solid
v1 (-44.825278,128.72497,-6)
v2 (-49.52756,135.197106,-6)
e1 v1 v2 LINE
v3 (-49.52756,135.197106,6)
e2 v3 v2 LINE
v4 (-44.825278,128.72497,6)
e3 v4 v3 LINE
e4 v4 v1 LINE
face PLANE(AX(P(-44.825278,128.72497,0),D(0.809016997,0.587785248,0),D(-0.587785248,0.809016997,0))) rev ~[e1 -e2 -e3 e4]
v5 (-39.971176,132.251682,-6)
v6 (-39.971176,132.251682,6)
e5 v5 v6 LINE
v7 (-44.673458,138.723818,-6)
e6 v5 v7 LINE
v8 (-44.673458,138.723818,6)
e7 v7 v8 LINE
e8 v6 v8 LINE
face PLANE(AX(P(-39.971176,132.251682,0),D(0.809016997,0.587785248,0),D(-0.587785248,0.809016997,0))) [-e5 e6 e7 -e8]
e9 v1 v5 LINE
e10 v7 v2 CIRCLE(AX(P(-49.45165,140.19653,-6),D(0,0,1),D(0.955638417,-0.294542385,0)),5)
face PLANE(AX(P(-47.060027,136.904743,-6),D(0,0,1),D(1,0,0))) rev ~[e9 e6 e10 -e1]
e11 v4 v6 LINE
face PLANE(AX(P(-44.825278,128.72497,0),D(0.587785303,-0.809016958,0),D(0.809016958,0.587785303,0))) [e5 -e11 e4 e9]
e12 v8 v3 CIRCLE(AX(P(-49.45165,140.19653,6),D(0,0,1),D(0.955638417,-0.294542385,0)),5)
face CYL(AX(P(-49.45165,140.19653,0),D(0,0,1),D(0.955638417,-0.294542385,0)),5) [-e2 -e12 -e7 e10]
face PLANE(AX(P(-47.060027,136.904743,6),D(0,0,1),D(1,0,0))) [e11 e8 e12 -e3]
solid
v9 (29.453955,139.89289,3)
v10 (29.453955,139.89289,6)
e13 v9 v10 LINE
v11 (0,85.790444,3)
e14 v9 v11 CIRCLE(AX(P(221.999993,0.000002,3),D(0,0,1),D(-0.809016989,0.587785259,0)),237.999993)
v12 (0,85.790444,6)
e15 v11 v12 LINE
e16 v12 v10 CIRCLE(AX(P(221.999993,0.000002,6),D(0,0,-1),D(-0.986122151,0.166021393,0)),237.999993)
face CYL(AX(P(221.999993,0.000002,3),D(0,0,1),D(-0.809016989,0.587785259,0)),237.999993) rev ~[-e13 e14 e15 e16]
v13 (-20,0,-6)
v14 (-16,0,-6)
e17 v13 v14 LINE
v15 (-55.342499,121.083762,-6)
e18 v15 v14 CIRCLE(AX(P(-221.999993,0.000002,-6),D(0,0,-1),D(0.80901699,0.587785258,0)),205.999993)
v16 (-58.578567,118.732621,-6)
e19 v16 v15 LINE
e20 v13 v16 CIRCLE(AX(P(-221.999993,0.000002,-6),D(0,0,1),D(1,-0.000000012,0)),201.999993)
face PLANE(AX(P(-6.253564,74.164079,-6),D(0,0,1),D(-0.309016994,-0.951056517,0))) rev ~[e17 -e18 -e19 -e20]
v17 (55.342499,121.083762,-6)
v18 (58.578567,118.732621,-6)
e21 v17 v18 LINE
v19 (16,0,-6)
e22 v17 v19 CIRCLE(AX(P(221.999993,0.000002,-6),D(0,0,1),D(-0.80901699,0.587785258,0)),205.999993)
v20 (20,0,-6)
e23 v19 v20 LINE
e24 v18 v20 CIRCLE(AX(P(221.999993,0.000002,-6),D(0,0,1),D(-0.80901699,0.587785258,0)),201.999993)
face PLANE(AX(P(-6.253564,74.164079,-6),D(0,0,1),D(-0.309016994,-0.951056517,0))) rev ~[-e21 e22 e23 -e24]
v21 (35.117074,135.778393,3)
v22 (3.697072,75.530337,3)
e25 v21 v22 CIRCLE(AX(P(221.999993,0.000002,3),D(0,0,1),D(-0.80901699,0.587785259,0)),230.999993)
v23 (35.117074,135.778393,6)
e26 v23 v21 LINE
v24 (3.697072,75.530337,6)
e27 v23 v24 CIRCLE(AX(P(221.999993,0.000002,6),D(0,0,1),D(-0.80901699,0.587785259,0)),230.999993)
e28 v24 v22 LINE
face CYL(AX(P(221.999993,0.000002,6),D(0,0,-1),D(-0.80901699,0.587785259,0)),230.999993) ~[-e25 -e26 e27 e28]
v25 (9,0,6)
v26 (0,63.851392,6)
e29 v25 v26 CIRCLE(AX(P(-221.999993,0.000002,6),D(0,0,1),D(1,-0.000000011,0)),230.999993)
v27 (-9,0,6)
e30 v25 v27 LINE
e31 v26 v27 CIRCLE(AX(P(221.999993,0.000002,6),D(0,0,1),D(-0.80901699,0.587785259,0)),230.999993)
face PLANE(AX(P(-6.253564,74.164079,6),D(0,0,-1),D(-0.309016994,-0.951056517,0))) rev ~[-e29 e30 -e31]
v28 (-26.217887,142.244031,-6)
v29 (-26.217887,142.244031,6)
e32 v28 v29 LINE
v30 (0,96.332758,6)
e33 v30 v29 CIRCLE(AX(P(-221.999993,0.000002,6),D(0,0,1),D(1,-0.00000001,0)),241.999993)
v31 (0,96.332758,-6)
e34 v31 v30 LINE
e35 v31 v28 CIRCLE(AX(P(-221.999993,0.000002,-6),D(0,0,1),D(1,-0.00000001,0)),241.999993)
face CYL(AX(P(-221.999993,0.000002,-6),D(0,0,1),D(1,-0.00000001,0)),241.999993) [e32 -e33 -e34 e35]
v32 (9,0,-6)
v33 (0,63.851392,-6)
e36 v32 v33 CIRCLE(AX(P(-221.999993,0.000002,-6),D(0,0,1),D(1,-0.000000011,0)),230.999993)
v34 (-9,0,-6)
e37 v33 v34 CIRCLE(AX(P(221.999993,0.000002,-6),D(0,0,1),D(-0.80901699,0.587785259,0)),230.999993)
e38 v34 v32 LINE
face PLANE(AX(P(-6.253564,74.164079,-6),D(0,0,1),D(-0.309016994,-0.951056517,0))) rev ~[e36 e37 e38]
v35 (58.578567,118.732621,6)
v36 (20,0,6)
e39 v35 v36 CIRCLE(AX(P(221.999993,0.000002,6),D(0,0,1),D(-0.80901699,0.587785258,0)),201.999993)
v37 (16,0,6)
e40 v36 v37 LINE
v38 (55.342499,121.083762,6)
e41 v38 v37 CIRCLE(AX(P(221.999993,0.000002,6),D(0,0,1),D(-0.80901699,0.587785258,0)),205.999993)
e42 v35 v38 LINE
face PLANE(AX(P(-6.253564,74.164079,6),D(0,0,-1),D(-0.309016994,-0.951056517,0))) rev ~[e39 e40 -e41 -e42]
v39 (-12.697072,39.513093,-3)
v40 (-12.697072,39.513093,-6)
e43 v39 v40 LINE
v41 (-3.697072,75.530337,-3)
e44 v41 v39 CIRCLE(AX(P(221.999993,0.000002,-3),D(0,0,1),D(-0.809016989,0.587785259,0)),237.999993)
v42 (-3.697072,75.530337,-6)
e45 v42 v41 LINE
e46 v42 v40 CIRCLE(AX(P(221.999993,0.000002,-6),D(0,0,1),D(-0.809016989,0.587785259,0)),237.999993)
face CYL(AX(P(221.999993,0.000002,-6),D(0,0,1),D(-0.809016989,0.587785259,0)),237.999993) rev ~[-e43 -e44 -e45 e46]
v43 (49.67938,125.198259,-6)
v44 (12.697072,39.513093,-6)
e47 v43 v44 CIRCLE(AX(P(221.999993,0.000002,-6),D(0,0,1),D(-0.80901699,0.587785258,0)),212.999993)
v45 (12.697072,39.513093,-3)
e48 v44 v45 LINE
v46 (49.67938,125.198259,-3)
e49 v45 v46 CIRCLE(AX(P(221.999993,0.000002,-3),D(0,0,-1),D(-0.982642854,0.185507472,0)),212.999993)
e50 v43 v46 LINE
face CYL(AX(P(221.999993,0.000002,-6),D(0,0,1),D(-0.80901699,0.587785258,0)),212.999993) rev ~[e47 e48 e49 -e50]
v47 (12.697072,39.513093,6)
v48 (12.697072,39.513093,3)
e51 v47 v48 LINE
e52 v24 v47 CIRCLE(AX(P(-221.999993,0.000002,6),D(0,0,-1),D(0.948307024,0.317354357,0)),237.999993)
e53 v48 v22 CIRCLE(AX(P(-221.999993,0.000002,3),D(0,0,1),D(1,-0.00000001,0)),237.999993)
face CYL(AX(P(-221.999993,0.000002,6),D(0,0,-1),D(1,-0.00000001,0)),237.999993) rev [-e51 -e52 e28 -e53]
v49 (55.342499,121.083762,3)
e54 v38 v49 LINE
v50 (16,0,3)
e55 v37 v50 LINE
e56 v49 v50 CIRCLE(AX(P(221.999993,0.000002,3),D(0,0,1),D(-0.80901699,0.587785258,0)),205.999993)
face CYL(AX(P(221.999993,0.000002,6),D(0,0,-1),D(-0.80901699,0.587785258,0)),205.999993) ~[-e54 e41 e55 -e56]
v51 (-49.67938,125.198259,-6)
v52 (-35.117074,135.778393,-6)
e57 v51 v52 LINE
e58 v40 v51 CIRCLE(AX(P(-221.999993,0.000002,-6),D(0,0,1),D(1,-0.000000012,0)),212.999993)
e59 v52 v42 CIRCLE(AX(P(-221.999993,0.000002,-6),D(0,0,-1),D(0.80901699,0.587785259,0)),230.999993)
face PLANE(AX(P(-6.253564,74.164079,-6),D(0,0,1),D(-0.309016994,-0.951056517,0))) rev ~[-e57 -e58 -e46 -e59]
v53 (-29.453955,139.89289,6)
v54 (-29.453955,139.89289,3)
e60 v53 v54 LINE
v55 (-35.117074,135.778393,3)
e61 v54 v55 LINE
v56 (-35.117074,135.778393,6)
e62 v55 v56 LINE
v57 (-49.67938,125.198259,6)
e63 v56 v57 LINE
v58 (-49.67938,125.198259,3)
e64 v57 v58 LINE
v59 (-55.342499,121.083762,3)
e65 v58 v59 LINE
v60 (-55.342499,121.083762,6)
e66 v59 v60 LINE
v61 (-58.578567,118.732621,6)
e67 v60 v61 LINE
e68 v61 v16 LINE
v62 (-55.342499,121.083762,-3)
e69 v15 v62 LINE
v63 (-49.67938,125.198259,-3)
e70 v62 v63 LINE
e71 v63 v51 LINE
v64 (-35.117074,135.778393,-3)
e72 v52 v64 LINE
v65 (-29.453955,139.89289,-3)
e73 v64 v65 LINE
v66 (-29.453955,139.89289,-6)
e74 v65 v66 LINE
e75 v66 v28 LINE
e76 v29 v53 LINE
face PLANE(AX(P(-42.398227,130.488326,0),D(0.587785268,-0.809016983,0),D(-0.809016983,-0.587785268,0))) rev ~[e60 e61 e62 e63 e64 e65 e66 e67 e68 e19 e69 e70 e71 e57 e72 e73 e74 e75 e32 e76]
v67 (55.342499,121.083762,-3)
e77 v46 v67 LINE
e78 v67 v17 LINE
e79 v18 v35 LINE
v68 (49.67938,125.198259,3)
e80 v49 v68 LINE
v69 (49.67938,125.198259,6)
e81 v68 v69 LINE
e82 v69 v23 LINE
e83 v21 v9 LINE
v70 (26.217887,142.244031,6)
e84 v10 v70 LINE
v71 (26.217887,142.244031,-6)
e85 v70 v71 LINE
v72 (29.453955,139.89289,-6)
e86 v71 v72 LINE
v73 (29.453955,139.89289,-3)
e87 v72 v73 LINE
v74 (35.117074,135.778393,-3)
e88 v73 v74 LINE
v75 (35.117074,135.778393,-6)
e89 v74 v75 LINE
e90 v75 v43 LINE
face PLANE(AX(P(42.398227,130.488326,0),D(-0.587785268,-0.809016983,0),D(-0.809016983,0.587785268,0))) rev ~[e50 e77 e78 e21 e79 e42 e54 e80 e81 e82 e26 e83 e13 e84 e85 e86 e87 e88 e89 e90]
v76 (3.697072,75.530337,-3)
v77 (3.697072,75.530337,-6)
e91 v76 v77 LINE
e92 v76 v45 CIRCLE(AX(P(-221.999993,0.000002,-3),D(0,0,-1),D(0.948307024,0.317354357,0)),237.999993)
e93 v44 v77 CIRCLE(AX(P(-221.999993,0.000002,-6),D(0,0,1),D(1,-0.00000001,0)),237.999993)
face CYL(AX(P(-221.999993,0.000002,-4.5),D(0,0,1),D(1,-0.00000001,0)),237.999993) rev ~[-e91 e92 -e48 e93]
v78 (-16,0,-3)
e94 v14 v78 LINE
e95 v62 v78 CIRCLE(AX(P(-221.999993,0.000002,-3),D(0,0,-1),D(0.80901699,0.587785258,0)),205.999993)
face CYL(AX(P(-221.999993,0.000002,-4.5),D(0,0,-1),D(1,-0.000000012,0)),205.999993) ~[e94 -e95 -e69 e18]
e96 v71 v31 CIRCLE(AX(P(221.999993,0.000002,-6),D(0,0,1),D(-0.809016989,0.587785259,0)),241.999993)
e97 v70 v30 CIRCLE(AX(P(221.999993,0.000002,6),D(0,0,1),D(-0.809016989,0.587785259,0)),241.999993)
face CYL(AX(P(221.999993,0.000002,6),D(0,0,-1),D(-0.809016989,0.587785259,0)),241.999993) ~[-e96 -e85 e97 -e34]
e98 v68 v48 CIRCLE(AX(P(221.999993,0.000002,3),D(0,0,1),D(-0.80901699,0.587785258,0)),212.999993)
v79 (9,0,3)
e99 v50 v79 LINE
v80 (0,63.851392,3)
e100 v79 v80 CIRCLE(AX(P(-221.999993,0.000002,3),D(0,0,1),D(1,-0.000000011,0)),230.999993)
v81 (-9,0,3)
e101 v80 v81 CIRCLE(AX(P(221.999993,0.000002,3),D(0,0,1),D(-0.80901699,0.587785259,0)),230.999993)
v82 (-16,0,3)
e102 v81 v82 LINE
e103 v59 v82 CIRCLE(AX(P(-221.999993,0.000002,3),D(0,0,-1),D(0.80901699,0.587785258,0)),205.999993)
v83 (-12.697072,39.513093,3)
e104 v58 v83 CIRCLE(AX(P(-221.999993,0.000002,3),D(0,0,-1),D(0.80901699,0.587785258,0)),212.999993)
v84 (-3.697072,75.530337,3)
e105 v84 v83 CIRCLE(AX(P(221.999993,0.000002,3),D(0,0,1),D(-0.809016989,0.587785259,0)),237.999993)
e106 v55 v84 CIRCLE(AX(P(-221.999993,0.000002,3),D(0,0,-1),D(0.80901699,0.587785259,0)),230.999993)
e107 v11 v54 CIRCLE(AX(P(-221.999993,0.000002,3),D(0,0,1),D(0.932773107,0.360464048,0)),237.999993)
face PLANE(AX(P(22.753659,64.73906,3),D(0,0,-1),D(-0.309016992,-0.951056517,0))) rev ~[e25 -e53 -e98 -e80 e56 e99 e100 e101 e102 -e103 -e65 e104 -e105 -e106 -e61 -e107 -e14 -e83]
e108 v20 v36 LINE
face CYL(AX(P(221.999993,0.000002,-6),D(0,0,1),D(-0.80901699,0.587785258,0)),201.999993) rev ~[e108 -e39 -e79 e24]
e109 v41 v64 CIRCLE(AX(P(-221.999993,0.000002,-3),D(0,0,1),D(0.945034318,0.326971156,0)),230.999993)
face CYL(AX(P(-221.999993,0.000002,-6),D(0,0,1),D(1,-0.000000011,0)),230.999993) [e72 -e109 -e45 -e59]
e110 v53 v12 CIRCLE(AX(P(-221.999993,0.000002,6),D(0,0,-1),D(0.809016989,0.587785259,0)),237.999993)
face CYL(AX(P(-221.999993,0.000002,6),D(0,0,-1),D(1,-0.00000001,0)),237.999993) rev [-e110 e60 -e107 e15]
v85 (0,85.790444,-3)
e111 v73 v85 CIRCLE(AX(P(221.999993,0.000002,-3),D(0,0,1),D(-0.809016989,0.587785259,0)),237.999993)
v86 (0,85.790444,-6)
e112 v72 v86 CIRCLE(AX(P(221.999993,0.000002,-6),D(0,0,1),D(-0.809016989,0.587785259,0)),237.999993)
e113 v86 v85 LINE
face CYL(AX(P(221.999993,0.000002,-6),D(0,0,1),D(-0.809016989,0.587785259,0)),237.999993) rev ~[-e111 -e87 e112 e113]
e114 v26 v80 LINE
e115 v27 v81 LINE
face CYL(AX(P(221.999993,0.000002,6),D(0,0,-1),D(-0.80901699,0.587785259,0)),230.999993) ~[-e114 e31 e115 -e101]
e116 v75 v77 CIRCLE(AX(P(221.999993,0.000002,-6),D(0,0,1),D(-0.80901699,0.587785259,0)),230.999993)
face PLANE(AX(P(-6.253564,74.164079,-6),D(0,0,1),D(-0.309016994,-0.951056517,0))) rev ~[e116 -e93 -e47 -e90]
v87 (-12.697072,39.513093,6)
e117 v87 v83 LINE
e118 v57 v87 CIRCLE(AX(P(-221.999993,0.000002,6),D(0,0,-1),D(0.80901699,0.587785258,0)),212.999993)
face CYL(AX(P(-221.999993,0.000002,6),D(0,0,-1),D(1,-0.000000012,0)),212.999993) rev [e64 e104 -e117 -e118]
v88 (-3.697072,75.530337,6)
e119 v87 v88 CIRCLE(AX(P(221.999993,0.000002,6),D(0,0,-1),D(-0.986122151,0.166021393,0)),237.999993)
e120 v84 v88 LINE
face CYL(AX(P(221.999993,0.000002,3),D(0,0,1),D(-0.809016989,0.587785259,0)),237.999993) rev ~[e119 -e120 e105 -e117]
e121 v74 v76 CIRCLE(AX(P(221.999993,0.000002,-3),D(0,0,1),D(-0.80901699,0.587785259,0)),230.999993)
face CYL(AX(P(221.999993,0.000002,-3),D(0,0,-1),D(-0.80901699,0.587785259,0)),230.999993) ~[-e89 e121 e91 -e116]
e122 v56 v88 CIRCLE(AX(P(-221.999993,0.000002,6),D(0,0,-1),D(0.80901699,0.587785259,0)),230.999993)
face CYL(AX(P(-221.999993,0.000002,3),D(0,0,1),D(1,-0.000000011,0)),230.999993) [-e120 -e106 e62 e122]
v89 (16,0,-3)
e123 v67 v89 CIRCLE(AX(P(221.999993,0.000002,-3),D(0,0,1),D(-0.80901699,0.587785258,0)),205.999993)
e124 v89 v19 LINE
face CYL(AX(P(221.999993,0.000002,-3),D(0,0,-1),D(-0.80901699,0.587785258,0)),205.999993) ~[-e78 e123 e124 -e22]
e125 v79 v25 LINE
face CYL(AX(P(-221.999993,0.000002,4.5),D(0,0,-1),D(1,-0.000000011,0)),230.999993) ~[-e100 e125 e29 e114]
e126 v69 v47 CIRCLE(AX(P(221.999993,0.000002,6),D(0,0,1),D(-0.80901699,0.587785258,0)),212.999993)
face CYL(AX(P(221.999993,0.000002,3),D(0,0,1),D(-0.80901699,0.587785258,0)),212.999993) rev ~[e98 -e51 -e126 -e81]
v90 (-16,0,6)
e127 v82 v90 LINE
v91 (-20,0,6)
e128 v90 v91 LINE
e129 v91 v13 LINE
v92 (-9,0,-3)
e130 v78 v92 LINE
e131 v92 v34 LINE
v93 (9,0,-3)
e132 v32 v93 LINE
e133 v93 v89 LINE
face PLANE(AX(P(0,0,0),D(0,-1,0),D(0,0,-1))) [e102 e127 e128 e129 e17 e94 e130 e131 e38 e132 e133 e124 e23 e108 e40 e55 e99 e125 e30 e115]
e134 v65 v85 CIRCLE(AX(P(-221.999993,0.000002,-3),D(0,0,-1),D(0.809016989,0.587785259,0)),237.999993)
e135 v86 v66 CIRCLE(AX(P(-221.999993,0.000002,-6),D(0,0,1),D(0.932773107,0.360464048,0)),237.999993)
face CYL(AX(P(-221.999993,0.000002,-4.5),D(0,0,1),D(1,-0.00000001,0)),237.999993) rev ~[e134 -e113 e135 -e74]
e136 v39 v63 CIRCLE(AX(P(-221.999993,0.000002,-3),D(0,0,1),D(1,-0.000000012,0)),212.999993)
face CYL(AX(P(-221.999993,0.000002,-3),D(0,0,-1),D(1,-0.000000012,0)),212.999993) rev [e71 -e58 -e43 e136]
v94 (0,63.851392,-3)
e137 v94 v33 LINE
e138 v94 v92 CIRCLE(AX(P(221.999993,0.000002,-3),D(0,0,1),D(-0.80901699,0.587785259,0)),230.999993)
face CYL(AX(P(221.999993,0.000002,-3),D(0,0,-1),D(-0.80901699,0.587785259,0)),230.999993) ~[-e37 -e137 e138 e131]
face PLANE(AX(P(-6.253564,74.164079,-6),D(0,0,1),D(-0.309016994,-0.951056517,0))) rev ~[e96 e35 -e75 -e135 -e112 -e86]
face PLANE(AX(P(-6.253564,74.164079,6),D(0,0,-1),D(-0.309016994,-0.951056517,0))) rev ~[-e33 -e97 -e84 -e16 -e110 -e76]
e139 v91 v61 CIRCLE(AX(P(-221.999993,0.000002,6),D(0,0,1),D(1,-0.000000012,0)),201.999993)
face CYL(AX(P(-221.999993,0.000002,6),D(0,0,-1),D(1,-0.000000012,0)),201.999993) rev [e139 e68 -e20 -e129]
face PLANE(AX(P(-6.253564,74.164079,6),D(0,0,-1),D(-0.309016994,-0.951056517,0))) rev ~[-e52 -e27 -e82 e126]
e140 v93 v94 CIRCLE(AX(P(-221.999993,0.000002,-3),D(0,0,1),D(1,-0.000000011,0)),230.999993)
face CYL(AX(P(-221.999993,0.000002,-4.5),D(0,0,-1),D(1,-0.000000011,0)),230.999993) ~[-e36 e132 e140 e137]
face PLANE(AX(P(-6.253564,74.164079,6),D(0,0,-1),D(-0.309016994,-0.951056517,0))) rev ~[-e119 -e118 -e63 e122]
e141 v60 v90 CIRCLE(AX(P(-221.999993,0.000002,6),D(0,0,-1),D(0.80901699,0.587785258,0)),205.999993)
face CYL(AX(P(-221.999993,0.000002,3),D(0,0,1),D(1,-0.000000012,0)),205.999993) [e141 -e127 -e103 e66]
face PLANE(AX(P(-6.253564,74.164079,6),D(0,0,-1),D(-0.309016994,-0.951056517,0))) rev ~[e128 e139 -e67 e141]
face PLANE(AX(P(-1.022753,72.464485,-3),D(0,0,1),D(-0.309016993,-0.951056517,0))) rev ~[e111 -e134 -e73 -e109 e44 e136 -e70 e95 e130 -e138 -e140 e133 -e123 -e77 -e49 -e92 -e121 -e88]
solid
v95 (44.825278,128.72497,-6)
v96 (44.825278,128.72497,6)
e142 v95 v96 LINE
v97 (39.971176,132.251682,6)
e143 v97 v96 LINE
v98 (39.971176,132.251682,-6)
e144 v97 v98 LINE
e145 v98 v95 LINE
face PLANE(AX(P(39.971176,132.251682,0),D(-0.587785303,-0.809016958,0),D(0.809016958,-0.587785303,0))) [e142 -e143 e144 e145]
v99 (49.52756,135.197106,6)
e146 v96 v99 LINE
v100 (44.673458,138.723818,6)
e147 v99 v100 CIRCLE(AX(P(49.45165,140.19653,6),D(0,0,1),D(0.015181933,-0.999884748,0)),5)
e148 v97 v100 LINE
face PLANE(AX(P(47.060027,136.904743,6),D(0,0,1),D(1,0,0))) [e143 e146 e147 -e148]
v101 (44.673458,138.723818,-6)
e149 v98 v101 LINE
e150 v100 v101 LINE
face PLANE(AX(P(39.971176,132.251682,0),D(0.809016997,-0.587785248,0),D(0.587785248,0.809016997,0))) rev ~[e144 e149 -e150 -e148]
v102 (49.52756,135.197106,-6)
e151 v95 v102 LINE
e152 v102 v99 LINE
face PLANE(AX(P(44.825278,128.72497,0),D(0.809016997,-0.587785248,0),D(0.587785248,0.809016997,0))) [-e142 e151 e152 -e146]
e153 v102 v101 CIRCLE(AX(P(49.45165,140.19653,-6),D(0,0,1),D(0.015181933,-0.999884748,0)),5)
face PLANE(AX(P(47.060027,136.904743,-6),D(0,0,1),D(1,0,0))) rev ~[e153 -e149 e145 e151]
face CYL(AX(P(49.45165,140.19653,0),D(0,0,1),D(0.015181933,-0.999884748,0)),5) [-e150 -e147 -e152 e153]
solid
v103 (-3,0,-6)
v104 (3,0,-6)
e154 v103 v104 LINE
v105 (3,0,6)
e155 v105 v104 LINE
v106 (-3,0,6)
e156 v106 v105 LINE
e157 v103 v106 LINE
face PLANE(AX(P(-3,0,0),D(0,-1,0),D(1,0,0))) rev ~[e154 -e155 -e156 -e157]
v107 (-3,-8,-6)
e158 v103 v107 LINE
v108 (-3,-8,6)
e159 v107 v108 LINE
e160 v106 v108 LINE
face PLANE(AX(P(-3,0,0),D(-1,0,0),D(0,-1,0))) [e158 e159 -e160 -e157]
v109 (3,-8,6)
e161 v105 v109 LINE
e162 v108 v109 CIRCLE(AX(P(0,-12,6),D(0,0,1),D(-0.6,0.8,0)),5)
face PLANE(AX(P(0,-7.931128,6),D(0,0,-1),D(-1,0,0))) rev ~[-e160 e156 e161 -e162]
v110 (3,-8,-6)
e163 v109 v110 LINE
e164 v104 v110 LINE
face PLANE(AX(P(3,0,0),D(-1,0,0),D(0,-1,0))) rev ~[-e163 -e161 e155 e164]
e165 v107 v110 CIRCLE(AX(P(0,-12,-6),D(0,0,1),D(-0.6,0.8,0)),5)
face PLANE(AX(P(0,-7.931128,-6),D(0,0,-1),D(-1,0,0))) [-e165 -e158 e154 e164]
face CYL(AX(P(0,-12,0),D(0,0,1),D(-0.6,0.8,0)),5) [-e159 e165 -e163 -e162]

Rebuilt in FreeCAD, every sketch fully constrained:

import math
import FreeCAD as App
import Part
import Sketcher
from FreeCAD import Vector
Q = App.Units.Quantity

doc = App.newDocument("Part")
body = doc.addObject("PartDesign::Body", "Body")

# Sketch on XZ plane
sketch1 = body.newObject("Sketcher::SketchObject", "Sketch")
sketch1.AttachmentSupport = (doc.getObject("XZ_Plane"), [""])
sketch1.MapMode = "FlatFace"
sketch1.addGeometry(Part.LineSegment(Vector(-20, 6, 0), Vector(-20, -6, 0)), False)
sketch1.addGeometry(Part.LineSegment(Vector(-20, -6, 0), Vector(-16, -6, 0)), False)
sketch1.addGeometry(Part.LineSegment(Vector(-16, -6, 0), Vector(-16, -3, 0)), False)
sketch1.addGeometry(Part.LineSegment(Vector(-16, -3, 0), Vector(-9, -3, 0)), False)
sketch1.addGeometry(Part.LineSegment(Vector(-9, -3, 0), Vector(-9, -6, 0)), False)
sketch1.addGeometry(Part.LineSegment(Vector(-9, -6, 0), Vector(9, -6, 0)), False)
sketch1.addGeometry(Part.LineSegment(Vector(9, -6, 0), Vector(9, -3, 0)), False)
sketch1.addGeometry(Part.LineSegment(Vector(9, -3, 0), Vector(16, -3, 0)), False)
sketch1.addGeometry(Part.LineSegment(Vector(16, -3, 0), Vector(16, -6, 0)), False)
sketch1.addGeometry(Part.LineSegment(Vector(16, -6, 0), Vector(20, -6, 0)), False)
sketch1.addGeometry(Part.LineSegment(Vector(20, -6, 0), Vector(20, 6, 0)), False)
sketch1.addGeometry(Part.LineSegment(Vector(20, 6, 0), Vector(16, 6, 0)), False)
sketch1.addGeometry(Part.LineSegment(Vector(16, 6, 0), Vector(16, 3, 0)), False)
sketch1.addGeometry(Part.LineSegment(Vector(16, 3, 0), Vector(9, 3, 0)), False)
sketch1.addGeometry(Part.LineSegment(Vector(9, 3, 0), Vector(9, 6, 0)), False)
sketch1.addGeometry(Part.LineSegment(Vector(9, 6, 0), Vector(-9, 6, 0)), False)
sketch1.addGeometry(Part.LineSegment(Vector(-9, 6, 0), Vector(-9, 3, 0)), False)
sketch1.addGeometry(Part.LineSegment(Vector(-9, 3, 0), Vector(-16, 3, 0)), False)
sketch1.addGeometry(Part.LineSegment(Vector(-16, 3, 0), Vector(-16, 6, 0)), False)
sketch1.addGeometry(Part.LineSegment(Vector(-16, 6, 0), Vector(-20, 6, 0)), False)
sketch1.addConstraint(Sketcher.Constraint("Coincident", 0, 2, 1, 1))
sketch1.addConstraint(Sketcher.Constraint("Coincident", 1, 2, 2, 1))
sketch1.addConstraint(Sketcher.Constraint("Coincident", 2, 2, 3, 1))
sketch1.addConstraint(Sketcher.Constraint("Coincident", 3, 2, 4, 1))
sketch1.addConstraint(Sketcher.Constraint("Coincident", 4, 2, 5, 1))
sketch1.addConstraint(Sketcher.Constraint("Coincident", 5, 2, 6, 1))
sketch1.addConstraint(Sketcher.Constraint("Coincident", 6, 2, 7, 1))
sketch1.addConstraint(Sketcher.Constraint("Coincident", 7, 2, 8, 1))
sketch1.addConstraint(Sketcher.Constraint("Coincident", 8, 2, 9, 1))
sketch1.addConstraint(Sketcher.Constraint("Coincident", 9, 2, 10, 1))
sketch1.addConstraint(Sketcher.Constraint("Coincident", 10, 2, 11, 1))
sketch1.addConstraint(Sketcher.Constraint("Coincident", 11, 2, 12, 1))
sketch1.addConstraint(Sketcher.Constraint("Coincident", 12, 2, 13, 1))
sketch1.addConstraint(Sketcher.Constraint("Coincident", 13, 2, 14, 1))
sketch1.addConstraint(Sketcher.Constraint("Coincident", 14, 2, 15, 1))
sketch1.addConstraint(Sketcher.Constraint("Coincident", 15, 2, 16, 1))
sketch1.addConstraint(Sketcher.Constraint("Coincident", 16, 2, 17, 1))
sketch1.addConstraint(Sketcher.Constraint("Coincident", 17, 2, 18, 1))
sketch1.addConstraint(Sketcher.Constraint("Coincident", 18, 2, 19, 1))
sketch1.addConstraint(Sketcher.Constraint("Coincident", 19, 2, 0, 1))
sketch1.addConstraint(Sketcher.Constraint("Vertical", 0))
sketch1.addConstraint(Sketcher.Constraint("Horizontal", 1))
sketch1.addConstraint(Sketcher.Constraint("Vertical", 2))
sketch1.addConstraint(Sketcher.Constraint("Horizontal", 3))
sketch1.addConstraint(Sketcher.Constraint("Vertical", 4))
sketch1.addConstraint(Sketcher.Constraint("Horizontal", 5))
sketch1.addConstraint(Sketcher.Constraint("Vertical", 6))
sketch1.addConstraint(Sketcher.Constraint("Horizontal", 7))
sketch1.addConstraint(Sketcher.Constraint("Vertical", 8))
sketch1.addConstraint(Sketcher.Constraint("Horizontal", 9))
sketch1.addConstraint(Sketcher.Constraint("Vertical", 10))
sketch1.addConstraint(Sketcher.Constraint("Horizontal", 11))
sketch1.addConstraint(Sketcher.Constraint("Vertical", 12))
sketch1.addConstraint(Sketcher.Constraint("Horizontal", 13))
sketch1.addConstraint(Sketcher.Constraint("Vertical", 14))
sketch1.addConstraint(Sketcher.Constraint("Horizontal", 15))
sketch1.addConstraint(Sketcher.Constraint("Vertical", 16))
sketch1.addConstraint(Sketcher.Constraint("Horizontal", 17))
sketch1.addConstraint(Sketcher.Constraint("Vertical", 18))
sketch1.addConstraint(Sketcher.Constraint("Horizontal", 19))
sketch1.addConstraint(Sketcher.Constraint("Symmetric", 0, 2, 10, 2, -1, 1))
sketch1.addConstraint(Sketcher.Constraint("Symmetric", 2, 2, 12, 2, -1, 1))
sketch1.addConstraint(Sketcher.Constraint("Symmetric", 4, 2, 14, 2, -1, 1))
sketch1.addConstraint(Sketcher.Constraint("Symmetric", 6, 2, 16, 2, -1, 1))
sketch1.addConstraint(Sketcher.Constraint("Symmetric", 8, 2, 18, 2, -1, 1))
sketch1.addConstraint(Sketcher.Constraint("Symmetric", 3, 2, 6, 2, -2))
sketch1.addConstraint(Sketcher.Constraint("Symmetric", 1, 2, 8, 2, -2))
sketch1.addConstraint(Sketcher.Constraint("Horizontal", 1, 2, 4, 2))
sketch1.addConstraint(Sketcher.Constraint("DistanceX", 1, 1, 1, 2, Q("4 mm")))
sketch1.addConstraint(Sketcher.Constraint("DistanceX", 3, 1, 3, 2, Q("7 mm")))
sketch1.addConstraint(Sketcher.Constraint("DistanceX", 5, 1, 5, 2, Q("18 mm")))
sketch1.addConstraint(Sketcher.Constraint("DistanceY", 0, 2, 0, 1, Q("12 mm")))
sketch1.addConstraint(Sketcher.Constraint("DistanceY", 2, 1, 2, 2, Q("3 mm")))

# Sketch on XY plane
sketch2 = body.newObject("Sketcher::SketchObject", "Sketch001")
sketch2.AttachmentSupport = (doc.getObject("XY_Plane"), [""])
sketch2.MapMode = "FlatFace"
sketch2.addGeometry(Part.ArcOfCircle(Part.Circle(Vector(-222, 0, 0), Vector(0, 0, 1), 222), math.radians(0), math.radians(36)), False)
sketch2.addConstraint(Sketcher.Constraint("Coincident", 0, 1, -1, 1))
sketch2.addConstraint(Sketcher.Constraint("Radius", 0, Q("221.999993 mm")))
sketch2.addConstraint(Sketcher.Constraint("DistanceX", 0, 2, -1, 1, Q("42.398227 mm")))
sketch2.addConstraint(Sketcher.Constraint("DistanceY", -1, 1, 0, 2, Q("130.488326 mm")))
doc.recompute()

additivepipe = body.newObject("PartDesign::AdditivePipe", "AdditivePipe")
additivepipe.Profile = sketch1
additivepipe.Spine = (sketch2, ["Edge1"])

# Sketch on XZ plane
sketch3 = body.newObject("Sketcher::SketchObject", "Sketch002")
sketch3.AttachmentSupport = (doc.getObject("XZ_Plane"), [""])
sketch3.MapMode = "FlatFace"
sketch3.addGeometry(Part.LineSegment(Vector(-20, 6, 0), Vector(-20, -6, 0)), False)
sketch3.addGeometry(Part.LineSegment(Vector(-20, -6, 0), Vector(-16, -6, 0)), False)
sketch3.addGeometry(Part.LineSegment(Vector(-16, -6, 0), Vector(-16, -3, 0)), False)
sketch3.addGeometry(Part.LineSegment(Vector(-16, -3, 0), Vector(-9, -3, 0)), False)
sketch3.addGeometry(Part.LineSegment(Vector(-9, -3, 0), Vector(-9, -6, 0)), False)
sketch3.addGeometry(Part.LineSegment(Vector(-9, -6, 0), Vector(9, -6, 0)), False)
sketch3.addGeometry(Part.LineSegment(Vector(9, -6, 0), Vector(9, -3, 0)), False)
sketch3.addGeometry(Part.LineSegment(Vector(9, -3, 0), Vector(16, -3, 0)), False)
sketch3.addGeometry(Part.LineSegment(Vector(16, -3, 0), Vector(16, -6, 0)), False)
sketch3.addGeometry(Part.LineSegment(Vector(16, -6, 0), Vector(20, -6, 0)), False)
sketch3.addGeometry(Part.LineSegment(Vector(20, -6, 0), Vector(20, 6, 0)), False)
sketch3.addGeometry(Part.LineSegment(Vector(20, 6, 0), Vector(16, 6, 0)), False)
sketch3.addGeometry(Part.LineSegment(Vector(16, 6, 0), Vector(16, 3, 0)), False)
sketch3.addGeometry(Part.LineSegment(Vector(16, 3, 0), Vector(9, 3, 0)), False)
sketch3.addGeometry(Part.LineSegment(Vector(9, 3, 0), Vector(9, 6, 0)), False)
sketch3.addGeometry(Part.LineSegment(Vector(9, 6, 0), Vector(-9, 6, 0)), False)
sketch3.addGeometry(Part.LineSegment(Vector(-9, 6, 0), Vector(-9, 3, 0)), False)
sketch3.addGeometry(Part.LineSegment(Vector(-9, 3, 0), Vector(-16, 3, 0)), False)
sketch3.addGeometry(Part.LineSegment(Vector(-16, 3, 0), Vector(-16, 6, 0)), False)
sketch3.addGeometry(Part.LineSegment(Vector(-16, 6, 0), Vector(-20, 6, 0)), False)
sketch3.addConstraint(Sketcher.Constraint("Coincident", 0, 2, 1, 1))
sketch3.addConstraint(Sketcher.Constraint("Coincident", 1, 2, 2, 1))
sketch3.addConstraint(Sketcher.Constraint("Coincident", 2, 2, 3, 1))
sketch3.addConstraint(Sketcher.Constraint("Coincident", 3, 2, 4, 1))
sketch3.addConstraint(Sketcher.Constraint("Coincident", 4, 2, 5, 1))
sketch3.addConstraint(Sketcher.Constraint("Coincident", 5, 2, 6, 1))
sketch3.addConstraint(Sketcher.Constraint("Coincident", 6, 2, 7, 1))
sketch3.addConstraint(Sketcher.Constraint("Coincident", 7, 2, 8, 1))
sketch3.addConstraint(Sketcher.Constraint("Coincident", 8, 2, 9, 1))
sketch3.addConstraint(Sketcher.Constraint("Coincident", 9, 2, 10, 1))
sketch3.addConstraint(Sketcher.Constraint("Coincident", 10, 2, 11, 1))
sketch3.addConstraint(Sketcher.Constraint("Coincident", 11, 2, 12, 1))
sketch3.addConstraint(Sketcher.Constraint("Coincident", 12, 2, 13, 1))
sketch3.addConstraint(Sketcher.Constraint("Coincident", 13, 2, 14, 1))
sketch3.addConstraint(Sketcher.Constraint("Coincident", 14, 2, 15, 1))
sketch3.addConstraint(Sketcher.Constraint("Coincident", 15, 2, 16, 1))
sketch3.addConstraint(Sketcher.Constraint("Coincident", 16, 2, 17, 1))
sketch3.addConstraint(Sketcher.Constraint("Coincident", 17, 2, 18, 1))
sketch3.addConstraint(Sketcher.Constraint("Coincident", 18, 2, 19, 1))
sketch3.addConstraint(Sketcher.Constraint("Coincident", 19, 2, 0, 1))
sketch3.addConstraint(Sketcher.Constraint("Vertical", 0))
sketch3.addConstraint(Sketcher.Constraint("Horizontal", 1))
sketch3.addConstraint(Sketcher.Constraint("Vertical", 2))
sketch3.addConstraint(Sketcher.Constraint("Horizontal", 3))
sketch3.addConstraint(Sketcher.Constraint("Vertical", 4))
sketch3.addConstraint(Sketcher.Constraint("Horizontal", 5))
sketch3.addConstraint(Sketcher.Constraint("Vertical", 6))
sketch3.addConstraint(Sketcher.Constraint("Horizontal", 7))
sketch3.addConstraint(Sketcher.Constraint("Vertical", 8))
sketch3.addConstraint(Sketcher.Constraint("Horizontal", 9))
sketch3.addConstraint(Sketcher.Constraint("Vertical", 10))
sketch3.addConstraint(Sketcher.Constraint("Horizontal", 11))
sketch3.addConstraint(Sketcher.Constraint("Vertical", 12))
sketch3.addConstraint(Sketcher.Constraint("Horizontal", 13))
sketch3.addConstraint(Sketcher.Constraint("Vertical", 14))
sketch3.addConstraint(Sketcher.Constraint("Horizontal", 15))
sketch3.addConstraint(Sketcher.Constraint("Vertical", 16))
sketch3.addConstraint(Sketcher.Constraint("Horizontal", 17))
sketch3.addConstraint(Sketcher.Constraint("Vertical", 18))
sketch3.addConstraint(Sketcher.Constraint("Horizontal", 19))
sketch3.addConstraint(Sketcher.Constraint("Symmetric", 0, 2, 10, 2, -1, 1))
sketch3.addConstraint(Sketcher.Constraint("Symmetric", 2, 2, 12, 2, -1, 1))
sketch3.addConstraint(Sketcher.Constraint("Symmetric", 4, 2, 14, 2, -1, 1))
sketch3.addConstraint(Sketcher.Constraint("Symmetric", 6, 2, 16, 2, -1, 1))
sketch3.addConstraint(Sketcher.Constraint("Symmetric", 8, 2, 18, 2, -1, 1))
sketch3.addConstraint(Sketcher.Constraint("Symmetric", 3, 2, 6, 2, -2))
sketch3.addConstraint(Sketcher.Constraint("Symmetric", 1, 2, 8, 2, -2))
sketch3.addConstraint(Sketcher.Constraint("Horizontal", 1, 2, 4, 2))
sketch3.addConstraint(Sketcher.Constraint("DistanceX", 1, 1, 1, 2, Q("4 mm")))
sketch3.addConstraint(Sketcher.Constraint("DistanceX", 3, 1, 3, 2, Q("7 mm")))
sketch3.addConstraint(Sketcher.Constraint("DistanceX", 5, 1, 5, 2, Q("18 mm")))
sketch3.addConstraint(Sketcher.Constraint("DistanceY", 0, 2, 0, 1, Q("12 mm")))
sketch3.addConstraint(Sketcher.Constraint("DistanceY", 2, 1, 2, 2, Q("3 mm")))

# Sketch on XY plane
sketch4 = body.newObject("Sketcher::SketchObject", "Sketch003")
sketch4.AttachmentSupport = (doc.getObject("XY_Plane"), [""])
sketch4.MapMode = "FlatFace"
sketch4.addGeometry(Part.ArcOfCircle(Part.Circle(Vector(222, 0, 0), Vector(0, 0, 1), 222), math.radians(144), math.radians(180)), False)
sketch4.addConstraint(Sketcher.Constraint("Coincident", 0, 2, -1, 1))
sketch4.addConstraint(Sketcher.Constraint("Radius", 0, Q("221.999993 mm")))
sketch4.addConstraint(Sketcher.Constraint("DistanceX", -1, 1, 0, 1, Q("42.398227 mm")))
sketch4.addConstraint(Sketcher.Constraint("DistanceY", -1, 1, 0, 1, Q("130.488326 mm")))
doc.recompute()

additivepipe2 = body.newObject("PartDesign::AdditivePipe", "AdditivePipe001")
additivepipe2.Profile = sketch3
additivepipe2.Spine = (sketch4, ["Edge1"])

# Sketch on XZ plane
sketch5 = body.newObject("Sketcher::SketchObject", "Sketch004")
sketch5.AttachmentSupport = (doc.getObject("XZ_Plane"), [""])
sketch5.MapMode = "FlatFace"
sketch5.addGeometry(Part.LineSegment(Vector(-16, 6, 0), Vector(-16, 3, 0)), False)
sketch5.addGeometry(Part.LineSegment(Vector(-16, 3, 0), Vector(-9, 3, 0)), False)
sketch5.addGeometry(Part.LineSegment(Vector(-9, 3, 0), Vector(-9, 6, 0)), False)
sketch5.addGeometry(Part.LineSegment(Vector(-9, 6, 0), Vector(-16, 6, 0)), False)
sketch5.addConstraint(Sketcher.Constraint("Coincident", 0, 2, 1, 1))
sketch5.addConstraint(Sketcher.Constraint("Coincident", 1, 2, 2, 1))
sketch5.addConstraint(Sketcher.Constraint("Coincident", 2, 2, 3, 1))
sketch5.addConstraint(Sketcher.Constraint("Coincident", 3, 2, 0, 1))
sketch5.addConstraint(Sketcher.Constraint("Vertical", 0))
sketch5.addConstraint(Sketcher.Constraint("Horizontal", 1))
sketch5.addConstraint(Sketcher.Constraint("Vertical", 2))
sketch5.addConstraint(Sketcher.Constraint("Horizontal", 3))
sketch5.addConstraint(Sketcher.Constraint("DistanceX", 1, 1, 1, 2, Q("7 mm")))
sketch5.addConstraint(Sketcher.Constraint("DistanceY", 0, 2, 0, 1, Q("3 mm")))
sketch5.addConstraint(Sketcher.Constraint("DistanceX", 0, 2, -1, 1, Q("16 mm")))
sketch5.addConstraint(Sketcher.Constraint("DistanceY", -1, 1, 0, 2, Q("3 mm")))

# Sketch on XY plane
sketch6 = body.newObject("Sketcher::SketchObject", "Sketch005")
sketch6.AttachmentSupport = (doc.getObject("XY_Plane"), [""])
sketch6.MapMode = "FlatFace"
sketch6.addGeometry(Part.ArcOfCircle(Part.Circle(Vector(-222, 0, 0), Vector(0, 0, 1), 222), math.radians(0), math.radians(36)), False)
sketch6.addConstraint(Sketcher.Constraint("Coincident", 0, 1, -1, 1))
sketch6.addConstraint(Sketcher.Constraint("Radius", 0, Q("221.999993 mm")))
sketch6.addConstraint(Sketcher.Constraint("DistanceX", 0, 2, -1, 1, Q("42.398227 mm")))
sketch6.addConstraint(Sketcher.Constraint("DistanceY", -1, 1, 0, 2, Q("130.488326 mm")))
doc.recompute()

subtractivepipe = body.newObject("PartDesign::SubtractivePipe", "SubtractivePipe")
subtractivepipe.Profile = sketch5
subtractivepipe.Spine = (sketch6, ["Edge1"])

# Sketch on XZ plane
sketch7 = body.newObject("Sketcher::SketchObject", "Sketch006")
sketch7.AttachmentSupport = (doc.getObject("XZ_Plane"), [""])
sketch7.MapMode = "FlatFace"
sketch7.addGeometry(Part.LineSegment(Vector(-16, 6, 0), Vector(-16, 3, 0)), False)
sketch7.addGeometry(Part.LineSegment(Vector(-16, 3, 0), Vector(-9, 3, 0)), False)
sketch7.addGeometry(Part.LineSegment(Vector(-9, 3, 0), Vector(-9, 6, 0)), False)
sketch7.addGeometry(Part.LineSegment(Vector(-9, 6, 0), Vector(-16, 6, 0)), False)
sketch7.addConstraint(Sketcher.Constraint("Coincident", 0, 2, 1, 1))
sketch7.addConstraint(Sketcher.Constraint("Coincident", 1, 2, 2, 1))
sketch7.addConstraint(Sketcher.Constraint("Coincident", 2, 2, 3, 1))
sketch7.addConstraint(Sketcher.Constraint("Coincident", 3, 2, 0, 1))
sketch7.addConstraint(Sketcher.Constraint("Vertical", 0))
sketch7.addConstraint(Sketcher.Constraint("Horizontal", 1))
sketch7.addConstraint(Sketcher.Constraint("Vertical", 2))
sketch7.addConstraint(Sketcher.Constraint("Horizontal", 3))
sketch7.addConstraint(Sketcher.Constraint("DistanceX", 1, 1, 1, 2, Q("7 mm")))
sketch7.addConstraint(Sketcher.Constraint("DistanceY", 0, 2, 0, 1, Q("3 mm")))
sketch7.addConstraint(Sketcher.Constraint("DistanceX", 0, 2, -1, 1, Q("16 mm")))
sketch7.addConstraint(Sketcher.Constraint("DistanceY", -1, 1, 0, 2, Q("3 mm")))

# Sketch on XY plane
sketch8 = body.newObject("Sketcher::SketchObject", "Sketch007")
sketch8.AttachmentSupport = (doc.getObject("XY_Plane"), [""])
sketch8.MapMode = "FlatFace"
sketch8.addGeometry(Part.ArcOfCircle(Part.Circle(Vector(222, 0, 0), Vector(0, 0, 1), 222), math.radians(144), math.radians(180)), False)
sketch8.addConstraint(Sketcher.Constraint("Coincident", 0, 2, -1, 1))
sketch8.addConstraint(Sketcher.Constraint("Radius", 0, Q("221.999993 mm")))
sketch8.addConstraint(Sketcher.Constraint("DistanceX", -1, 1, 0, 1, Q("42.398227 mm")))
sketch8.addConstraint(Sketcher.Constraint("DistanceY", -1, 1, 0, 1, Q("130.488326 mm")))
doc.recompute()

subtractivepipe2 = body.newObject("PartDesign::SubtractivePipe", "SubtractivePipe001")
subtractivepipe2.Profile = sketch7
subtractivepipe2.Spine = (sketch8, ["Edge1"])

# Sketch on XZ plane
sketch9 = body.newObject("Sketcher::SketchObject", "Sketch008")
sketch9.AttachmentSupport = (doc.getObject("XZ_Plane"), [""])
sketch9.MapMode = "FlatFace"
sketch9.addGeometry(Part.LineSegment(Vector(9, 6, 0), Vector(9, 3, 0)), False)
sketch9.addGeometry(Part.LineSegment(Vector(9, 3, 0), Vector(16, 3, 0)), False)
sketch9.addGeometry(Part.LineSegment(Vector(16, 3, 0), Vector(16, 6, 0)), False)
sketch9.addGeometry(Part.LineSegment(Vector(16, 6, 0), Vector(9, 6, 0)), False)
sketch9.addConstraint(Sketcher.Constraint("Coincident", 0, 2, 1, 1))
sketch9.addConstraint(Sketcher.Constraint("Coincident", 1, 2, 2, 1))
sketch9.addConstraint(Sketcher.Constraint("Coincident", 2, 2, 3, 1))
sketch9.addConstraint(Sketcher.Constraint("Coincident", 3, 2, 0, 1))
sketch9.addConstraint(Sketcher.Constraint("Vertical", 0))
sketch9.addConstraint(Sketcher.Constraint("Horizontal", 1))
sketch9.addConstraint(Sketcher.Constraint("Vertical", 2))
sketch9.addConstraint(Sketcher.Constraint("Horizontal", 3))
sketch9.addConstraint(Sketcher.Constraint("DistanceX", 1, 1, 1, 2, Q("7 mm")))
sketch9.addConstraint(Sketcher.Constraint("DistanceY", 0, 2, 0, 1, Q("3 mm")))
sketch9.addConstraint(Sketcher.Constraint("DistanceX", -1, 1, 0, 2, Q("9 mm")))
sketch9.addConstraint(Sketcher.Constraint("DistanceY", -1, 1, 0, 2, Q("3 mm")))

# Sketch on XY plane
sketch10 = body.newObject("Sketcher::SketchObject", "Sketch009")
sketch10.AttachmentSupport = (doc.getObject("XY_Plane"), [""])
sketch10.MapMode = "FlatFace"
sketch10.addGeometry(Part.ArcOfCircle(Part.Circle(Vector(-222, 0, 0), Vector(0, 0, 1), 222), math.radians(0), math.radians(36)), False)
sketch10.addConstraint(Sketcher.Constraint("Coincident", 0, 1, -1, 1))
sketch10.addConstraint(Sketcher.Constraint("Radius", 0, Q("221.999993 mm")))
sketch10.addConstraint(Sketcher.Constraint("DistanceX", 0, 2, -1, 1, Q("42.398227 mm")))
sketch10.addConstraint(Sketcher.Constraint("DistanceY", -1, 1, 0, 2, Q("130.488326 mm")))
doc.recompute()

subtractivepipe3 = body.newObject("PartDesign::SubtractivePipe", "SubtractivePipe002")
subtractivepipe3.Profile = sketch9
subtractivepipe3.Spine = (sketch10, ["Edge1"])

# Sketch on XZ plane
sketch11 = body.newObject("Sketcher::SketchObject", "Sketch010")
sketch11.AttachmentSupport = (doc.getObject("XZ_Plane"), [""])
sketch11.MapMode = "FlatFace"
sketch11.addGeometry(Part.LineSegment(Vector(9, 6, 0), Vector(9, 3, 0)), False)
sketch11.addGeometry(Part.LineSegment(Vector(9, 3, 0), Vector(16, 3, 0)), False)
sketch11.addGeometry(Part.LineSegment(Vector(16, 3, 0), Vector(16, 6, 0)), False)
sketch11.addGeometry(Part.LineSegment(Vector(16, 6, 0), Vector(9, 6, 0)), False)
sketch11.addConstraint(Sketcher.Constraint("Coincident", 0, 2, 1, 1))
sketch11.addConstraint(Sketcher.Constraint("Coincident", 1, 2, 2, 1))
sketch11.addConstraint(Sketcher.Constraint("Coincident", 2, 2, 3, 1))
sketch11.addConstraint(Sketcher.Constraint("Coincident", 3, 2, 0, 1))
sketch11.addConstraint(Sketcher.Constraint("Vertical", 0))
sketch11.addConstraint(Sketcher.Constraint("Horizontal", 1))
sketch11.addConstraint(Sketcher.Constraint("Vertical", 2))
sketch11.addConstraint(Sketcher.Constraint("Horizontal", 3))
sketch11.addConstraint(Sketcher.Constraint("DistanceX", 1, 1, 1, 2, Q("7 mm")))
sketch11.addConstraint(Sketcher.Constraint("DistanceY", 0, 2, 0, 1, Q("3 mm")))
sketch11.addConstraint(Sketcher.Constraint("DistanceX", -1, 1, 0, 2, Q("9 mm")))
sketch11.addConstraint(Sketcher.Constraint("DistanceY", -1, 1, 0, 2, Q("3 mm")))

# Sketch on XY plane
sketch12 = body.newObject("Sketcher::SketchObject", "Sketch011")
sketch12.AttachmentSupport = (doc.getObject("XY_Plane"), [""])
sketch12.MapMode = "FlatFace"
sketch12.addGeometry(Part.ArcOfCircle(Part.Circle(Vector(222, 0, 0), Vector(0, 0, 1), 222), math.radians(144), math.radians(180)), False)
sketch12.addConstraint(Sketcher.Constraint("Coincident", 0, 2, -1, 1))
sketch12.addConstraint(Sketcher.Constraint("Radius", 0, Q("221.999993 mm")))
sketch12.addConstraint(Sketcher.Constraint("DistanceX", -1, 1, 0, 1, Q("42.398227 mm")))
sketch12.addConstraint(Sketcher.Constraint("DistanceY", -1, 1, 0, 1, Q("130.488326 mm")))
doc.recompute()

subtractivepipe4 = body.newObject("PartDesign::SubtractivePipe", "SubtractivePipe003")
subtractivepipe4.Profile = sketch11
subtractivepipe4.Spine = (sketch12, ["Edge1"])

# Sketch on XZ plane
sketch13 = body.newObject("Sketcher::SketchObject", "Sketch012")
sketch13.AttachmentSupport = (doc.getObject("XZ_Plane"), [""])
sketch13.MapMode = "FlatFace"
sketch13.addGeometry(Part.LineSegment(Vector(-16, -3, 0), Vector(-16, -6, 0)), False)
sketch13.addGeometry(Part.LineSegment(Vector(-16, -6, 0), Vector(-9, -6, 0)), False)
sketch13.addGeometry(Part.LineSegment(Vector(-9, -6, 0), Vector(-9, -3, 0)), False)
sketch13.addGeometry(Part.LineSegment(Vector(-9, -3, 0), Vector(-16, -3, 0)), False)
sketch13.addConstraint(Sketcher.Constraint("Coincident", 0, 2, 1, 1))
sketch13.addConstraint(Sketcher.Constraint("Coincident", 1, 2, 2, 1))
sketch13.addConstraint(Sketcher.Constraint("Coincident", 2, 2, 3, 1))
sketch13.addConstraint(Sketcher.Constraint("Coincident", 3, 2, 0, 1))
sketch13.addConstraint(Sketcher.Constraint("Vertical", 0))
sketch13.addConstraint(Sketcher.Constraint("Horizontal", 1))
sketch13.addConstraint(Sketcher.Constraint("Vertical", 2))
sketch13.addConstraint(Sketcher.Constraint("Horizontal", 3))
sketch13.addConstraint(Sketcher.Constraint("DistanceX", 1, 1, 1, 2, Q("7 mm")))
sketch13.addConstraint(Sketcher.Constraint("DistanceY", 0, 2, 0, 1, Q("3 mm")))
sketch13.addConstraint(Sketcher.Constraint("DistanceX", 0, 2, -1, 1, Q("16 mm")))
sketch13.addConstraint(Sketcher.Constraint("DistanceY", 0, 2, -1, 1, Q("6 mm")))

# Sketch on XY plane
sketch14 = body.newObject("Sketcher::SketchObject", "Sketch013")
sketch14.AttachmentSupport = (doc.getObject("XY_Plane"), [""])
sketch14.MapMode = "FlatFace"
sketch14.addGeometry(Part.ArcOfCircle(Part.Circle(Vector(-222, 0, 0), Vector(0, 0, 1), 222), math.radians(0), math.radians(36)), False)
sketch14.addConstraint(Sketcher.Constraint("Coincident", 0, 1, -1, 1))
sketch14.addConstraint(Sketcher.Constraint("Radius", 0, Q("221.999993 mm")))
sketch14.addConstraint(Sketcher.Constraint("DistanceX", 0, 2, -1, 1, Q("42.398227 mm")))
sketch14.addConstraint(Sketcher.Constraint("DistanceY", -1, 1, 0, 2, Q("130.488326 mm")))
doc.recompute()

subtractivepipe5 = body.newObject("PartDesign::SubtractivePipe", "SubtractivePipe004")
subtractivepipe5.Profile = sketch13
subtractivepipe5.Spine = (sketch14, ["Edge1"])

# Sketch on XZ plane
sketch15 = body.newObject("Sketcher::SketchObject", "Sketch014")
sketch15.AttachmentSupport = (doc.getObject("XZ_Plane"), [""])
sketch15.MapMode = "FlatFace"
sketch15.addGeometry(Part.LineSegment(Vector(-16, -3, 0), Vector(-16, -6, 0)), False)
sketch15.addGeometry(Part.LineSegment(Vector(-16, -6, 0), Vector(-9, -6, 0)), False)
sketch15.addGeometry(Part.LineSegment(Vector(-9, -6, 0), Vector(-9, -3, 0)), False)
sketch15.addGeometry(Part.LineSegment(Vector(-9, -3, 0), Vector(-16, -3, 0)), False)
sketch15.addConstraint(Sketcher.Constraint("Coincident", 0, 2, 1, 1))
sketch15.addConstraint(Sketcher.Constraint("Coincident", 1, 2, 2, 1))
sketch15.addConstraint(Sketcher.Constraint("Coincident", 2, 2, 3, 1))
sketch15.addConstraint(Sketcher.Constraint("Coincident", 3, 2, 0, 1))
sketch15.addConstraint(Sketcher.Constraint("Vertical", 0))
sketch15.addConstraint(Sketcher.Constraint("Horizontal", 1))
sketch15.addConstraint(Sketcher.Constraint("Vertical", 2))
sketch15.addConstraint(Sketcher.Constraint("Horizontal", 3))
sketch15.addConstraint(Sketcher.Constraint("DistanceX", 1, 1, 1, 2, Q("7 mm")))
sketch15.addConstraint(Sketcher.Constraint("DistanceY", 0, 2, 0, 1, Q("3 mm")))
sketch15.addConstraint(Sketcher.Constraint("DistanceX", 0, 2, -1, 1, Q("16 mm")))
sketch15.addConstraint(Sketcher.Constraint("DistanceY", 0, 2, -1, 1, Q("6 mm")))

# Sketch on XY plane
sketch16 = body.newObject("Sketcher::SketchObject", "Sketch015")
sketch16.AttachmentSupport = (doc.getObject("XY_Plane"), [""])
sketch16.MapMode = "FlatFace"
sketch16.addGeometry(Part.ArcOfCircle(Part.Circle(Vector(222, 0, 0), Vector(0, 0, 1), 222), math.radians(144), math.radians(180)), False)
sketch16.addConstraint(Sketcher.Constraint("Coincident", 0, 2, -1, 1))
sketch16.addConstraint(Sketcher.Constraint("Radius", 0, Q("221.999993 mm")))
sketch16.addConstraint(Sketcher.Constraint("DistanceX", -1, 1, 0, 1, Q("42.398227 mm")))
sketch16.addConstraint(Sketcher.Constraint("DistanceY", -1, 1, 0, 1, Q("130.488326 mm")))
doc.recompute()

subtractivepipe6 = body.newObject("PartDesign::SubtractivePipe", "SubtractivePipe005")
subtractivepipe6.Profile = sketch15
subtractivepipe6.Spine = (sketch16, ["Edge1"])

# Sketch on XZ plane
sketch17 = body.newObject("Sketcher::SketchObject", "Sketch016")
sketch17.AttachmentSupport = (doc.getObject("XZ_Plane"), [""])
sketch17.MapMode = "FlatFace"
sketch17.addGeometry(Part.LineSegment(Vector(9, -3, 0), Vector(9, -6, 0)), False)
sketch17.addGeometry(Part.LineSegment(Vector(9, -6, 0), Vector(16, -6, 0)), False)
sketch17.addGeometry(Part.LineSegment(Vector(16, -6, 0), Vector(16, -3, 0)), False)
sketch17.addGeometry(Part.LineSegment(Vector(16, -3, 0), Vector(9, -3, 0)), False)
sketch17.addConstraint(Sketcher.Constraint("Coincident", 0, 2, 1, 1))
sketch17.addConstraint(Sketcher.Constraint("Coincident", 1, 2, 2, 1))
sketch17.addConstraint(Sketcher.Constraint("Coincident", 2, 2, 3, 1))
sketch17.addConstraint(Sketcher.Constraint("Coincident", 3, 2, 0, 1))
sketch17.addConstraint(Sketcher.Constraint("Vertical", 0))
sketch17.addConstraint(Sketcher.Constraint("Horizontal", 1))
sketch17.addConstraint(Sketcher.Constraint("Vertical", 2))
sketch17.addConstraint(Sketcher.Constraint("Horizontal", 3))
sketch17.addConstraint(Sketcher.Constraint("DistanceX", 1, 1, 1, 2, Q("7 mm")))
sketch17.addConstraint(Sketcher.Constraint("DistanceY", 0, 2, 0, 1, Q("3 mm")))
sketch17.addConstraint(Sketcher.Constraint("DistanceX", -1, 1, 0, 2, Q("9 mm")))
sketch17.addConstraint(Sketcher.Constraint("DistanceY", 0, 2, -1, 1, Q("6 mm")))

# Sketch on XY plane
sketch18 = body.newObject("Sketcher::SketchObject", "Sketch017")
sketch18.AttachmentSupport = (doc.getObject("XY_Plane"), [""])
sketch18.MapMode = "FlatFace"
sketch18.addGeometry(Part.ArcOfCircle(Part.Circle(Vector(-222, 0, 0), Vector(0, 0, 1), 222), math.radians(0), math.radians(36)), False)
sketch18.addConstraint(Sketcher.Constraint("Coincident", 0, 1, -1, 1))
sketch18.addConstraint(Sketcher.Constraint("Radius", 0, Q("221.999993 mm")))
sketch18.addConstraint(Sketcher.Constraint("DistanceX", 0, 2, -1, 1, Q("42.398227 mm")))
sketch18.addConstraint(Sketcher.Constraint("DistanceY", -1, 1, 0, 2, Q("130.488326 mm")))
doc.recompute()

subtractivepipe7 = body.newObject("PartDesign::SubtractivePipe", "SubtractivePipe006")
subtractivepipe7.Profile = sketch17
subtractivepipe7.Spine = (sketch18, ["Edge1"])

# Sketch on XZ plane
sketch19 = body.newObject("Sketcher::SketchObject", "Sketch018")
sketch19.AttachmentSupport = (doc.getObject("XZ_Plane"), [""])
sketch19.MapMode = "FlatFace"
sketch19.addGeometry(Part.LineSegment(Vector(9, -3, 0), Vector(9, -6, 0)), False)
sketch19.addGeometry(Part.LineSegment(Vector(9, -6, 0), Vector(16, -6, 0)), False)
sketch19.addGeometry(Part.LineSegment(Vector(16, -6, 0), Vector(16, -3, 0)), False)
sketch19.addGeometry(Part.LineSegment(Vector(16, -3, 0), Vector(9, -3, 0)), False)
sketch19.addConstraint(Sketcher.Constraint("Coincident", 0, 2, 1, 1))
sketch19.addConstraint(Sketcher.Constraint("Coincident", 1, 2, 2, 1))
sketch19.addConstraint(Sketcher.Constraint("Coincident", 2, 2, 3, 1))
sketch19.addConstraint(Sketcher.Constraint("Coincident", 3, 2, 0, 1))
sketch19.addConstraint(Sketcher.Constraint("Vertical", 0))
sketch19.addConstraint(Sketcher.Constraint("Horizontal", 1))
sketch19.addConstraint(Sketcher.Constraint("Vertical", 2))
sketch19.addConstraint(Sketcher.Constraint("Horizontal", 3))
sketch19.addConstraint(Sketcher.Constraint("DistanceX", 1, 1, 1, 2, Q("7 mm")))
sketch19.addConstraint(Sketcher.Constraint("DistanceY", 0, 2, 0, 1, Q("3 mm")))
sketch19.addConstraint(Sketcher.Constraint("DistanceX", -1, 1, 0, 2, Q("9 mm")))
sketch19.addConstraint(Sketcher.Constraint("DistanceY", 0, 2, -1, 1, Q("6 mm")))

# Sketch on XY plane
sketch20 = body.newObject("Sketcher::SketchObject", "Sketch019")
sketch20.AttachmentSupport = (doc.getObject("XY_Plane"), [""])
sketch20.MapMode = "FlatFace"
sketch20.addGeometry(Part.ArcOfCircle(Part.Circle(Vector(222, 0, 0), Vector(0, 0, 1), 222), math.radians(144), math.radians(180)), False)
sketch20.addConstraint(Sketcher.Constraint("Coincident", 0, 2, -1, 1))
sketch20.addConstraint(Sketcher.Constraint("Radius", 0, Q("221.999993 mm")))
sketch20.addConstraint(Sketcher.Constraint("DistanceX", -1, 1, 0, 1, Q("42.398227 mm")))
sketch20.addConstraint(Sketcher.Constraint("DistanceY", -1, 1, 0, 1, Q("130.488326 mm")))
doc.recompute()

subtractivepipe8 = body.newObject("PartDesign::SubtractivePipe", "SubtractivePipe007")
subtractivepipe8.Profile = sketch19
subtractivepipe8.Spine = (sketch20, ["Edge1"])
body2 = doc.addObject("PartDesign::Body", "Body001")

# Sketch on XY plane
sketch21 = body2.newObject("Sketcher::SketchObject", "Sketch020")
sketch21.AttachmentSupport = (doc.getObject("XY_Plane001"), [""])
sketch21.MapMode = "FlatFace"
sketch21.addGeometry(Part.LineSegment(Vector(3, 0, 0), Vector(-3, 0, 0)), False)
sketch21.addGeometry(Part.LineSegment(Vector(-3, 0, 0), Vector(-3, -8, 0)), False)
sketch21.addGeometry(Part.ArcOfCircle(Part.Circle(Vector(0, -12, 0), Vector(0, 0, 1), 5), math.radians(127), math.radians(413)), False)
sketch21.addGeometry(Part.LineSegment(Vector(3, -8, 0), Vector(3, 0, 0)), False)
sketch21.addConstraint(Sketcher.Constraint("Coincident", 0, 2, 1, 1))
sketch21.addConstraint(Sketcher.Constraint("Coincident", 1, 2, 2, 1))
sketch21.addConstraint(Sketcher.Constraint("Coincident", 2, 2, 3, 1))
sketch21.addConstraint(Sketcher.Constraint("Coincident", 3, 2, 0, 1))
sketch21.addConstraint(Sketcher.Constraint("Horizontal", 0))
sketch21.addConstraint(Sketcher.Constraint("Vertical", 1))
sketch21.addConstraint(Sketcher.Constraint("Vertical", 3))
sketch21.addConstraint(Sketcher.Constraint("Symmetric", 0, 2, 3, 2, -1, 1))
sketch21.addConstraint(Sketcher.Constraint("PointOnObject", 2, 3, -2))
sketch21.addConstraint(Sketcher.Constraint("Radius", 2, Q("5 mm")))
sketch21.addConstraint(Sketcher.Constraint("DistanceX", 0, 2, 0, 1, Q("6 mm")))
sketch21.addConstraint(Sketcher.Constraint("DistanceY", 1, 2, 1, 1, Q("8 mm")))
pad1 = body2.newObject("PartDesign::Pad", "Pad")
pad1.Profile = sketch21
pad1.Length = 12
pad1.Midplane = True
body3 = doc.addObject("PartDesign::Body", "Body002")

# Sketch on XY plane
sketch22 = body3.newObject("Sketcher::SketchObject", "Sketch021")
sketch22.AttachmentSupport = (doc.getObject("XY_Plane002"), [""])
sketch22.MapMode = "FlatFace"
sketch22.addGeometry(Part.LineSegment(Vector(40, 132, 0), Vector(45, 129, 0)), False)
sketch22.addGeometry(Part.LineSegment(Vector(45, 129, 0), Vector(50, 135, 0)), False)
sketch22.addGeometry(Part.ArcOfCircle(Part.Circle(Vector(49, 140, 0), Vector(0, 0, 1), 5), math.radians(-89), math.radians(197)), False)
sketch22.addGeometry(Part.LineSegment(Vector(45, 139, 0), Vector(40, 132, 0)), False)
sketch22.addConstraint(Sketcher.Constraint("Coincident", 0, 2, 1, 1))
sketch22.addConstraint(Sketcher.Constraint("Coincident", 1, 2, 2, 1))
sketch22.addConstraint(Sketcher.Constraint("Coincident", 2, 2, 3, 1))
sketch22.addConstraint(Sketcher.Constraint("Coincident", 3, 2, 0, 1))
sketch22.addConstraint(Sketcher.Constraint("Perpendicular", 0, 1))
sketch22.addConstraint(Sketcher.Constraint("Parallel", 1, 3))
sketch22.addConstraint(Sketcher.Constraint("Equal", 1, 3))
sketch22.addConstraint(Sketcher.Constraint("Radius", 2, Q("5 mm")))
sketch22.addConstraint(Sketcher.Constraint("Angle", 0, Q("-36.000004 deg")))
sketch22.addConstraint(Sketcher.Constraint("Distance", 0, Q("6 mm")))
sketch22.addConstraint(Sketcher.Constraint("Distance", 1, Q("8 mm")))
sketch22.addConstraint(Sketcher.Constraint("DistanceX", -1, 1, 2, 3, Q("49.45165 mm")))
sketch22.addConstraint(Sketcher.Constraint("DistanceY", -1, 1, 2, 3, Q("140.19653 mm")))
pad2 = body3.newObject("PartDesign::Pad", "Pad001")
pad2.Profile = sketch22
pad2.Length = 12
pad2.Midplane = True
body4 = doc.addObject("PartDesign::Body", "Body003")

# Sketch on XY plane
sketch23 = body4.newObject("Sketcher::SketchObject", "Sketch022")
sketch23.AttachmentSupport = (doc.getObject("XY_Plane003"), [""])
sketch23.MapMode = "FlatFace"
sketch23.addGeometry(Part.LineSegment(Vector(-45, 129, 0), Vector(-40, 132, 0)), False)
sketch23.addGeometry(Part.LineSegment(Vector(-40, 132, 0), Vector(-45, 139, 0)), False)
sketch23.addGeometry(Part.ArcOfCircle(Part.Circle(Vector(-49, 140, 0), Vector(0, 0, 1), 5), math.radians(-17), math.radians(269)), False)
sketch23.addGeometry(Part.LineSegment(Vector(-50, 135, 0), Vector(-45, 129, 0)), False)
sketch23.addConstraint(Sketcher.Constraint("Coincident", 0, 2, 1, 1))
sketch23.addConstraint(Sketcher.Constraint("Coincident", 1, 2, 2, 1))
sketch23.addConstraint(Sketcher.Constraint("Coincident", 2, 2, 3, 1))
sketch23.addConstraint(Sketcher.Constraint("Coincident", 3, 2, 0, 1))
sketch23.addConstraint(Sketcher.Constraint("Perpendicular", 0, 1))
sketch23.addConstraint(Sketcher.Constraint("Parallel", 1, 3))
sketch23.addConstraint(Sketcher.Constraint("Equal", 1, 3))
sketch23.addConstraint(Sketcher.Constraint("Radius", 2, Q("5 mm")))
sketch23.addConstraint(Sketcher.Constraint("Angle", 0, Q("36.000004 deg")))
sketch23.addConstraint(Sketcher.Constraint("Distance", 0, Q("6 mm")))
sketch23.addConstraint(Sketcher.Constraint("Distance", 1, Q("8 mm")))
sketch23.addConstraint(Sketcher.Constraint("DistanceX", 2, 3, -1, 1, Q("49.45165 mm")))
sketch23.addConstraint(Sketcher.Constraint("DistanceY", -1, 1, 2, 3, Q("140.19653 mm")))
pad3 = body4.newObject("PartDesign::Pad", "Pad002")
pad3.Profile = sketch23
pad3.Length = 12
pad3.Midplane = True

doc.recompute()
